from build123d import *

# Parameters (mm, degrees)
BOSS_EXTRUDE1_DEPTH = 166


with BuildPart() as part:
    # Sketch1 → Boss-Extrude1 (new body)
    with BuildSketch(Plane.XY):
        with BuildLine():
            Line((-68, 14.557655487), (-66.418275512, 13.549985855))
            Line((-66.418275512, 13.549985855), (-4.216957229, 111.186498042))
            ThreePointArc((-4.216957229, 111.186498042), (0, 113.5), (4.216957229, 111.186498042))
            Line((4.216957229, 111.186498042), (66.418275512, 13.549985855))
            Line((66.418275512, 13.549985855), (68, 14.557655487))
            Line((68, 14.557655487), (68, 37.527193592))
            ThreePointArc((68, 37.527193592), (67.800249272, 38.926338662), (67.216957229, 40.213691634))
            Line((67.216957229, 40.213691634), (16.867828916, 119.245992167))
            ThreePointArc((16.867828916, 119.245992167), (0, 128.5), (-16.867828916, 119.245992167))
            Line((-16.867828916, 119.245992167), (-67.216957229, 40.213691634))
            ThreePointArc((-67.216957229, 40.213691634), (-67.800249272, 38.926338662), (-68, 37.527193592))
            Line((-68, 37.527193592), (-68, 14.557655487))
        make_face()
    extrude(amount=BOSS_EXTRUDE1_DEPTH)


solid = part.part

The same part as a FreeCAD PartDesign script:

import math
import FreeCAD as App
import Part
import Sketcher
Q = App.Units.Quantity

doc = App.newDocument("Part")
body = doc.addObject("PartDesign::Body", "Body")

sketch1 = body.newObject("Sketcher::SketchObject", "Sketch")
sketch1.AttachmentSupport = (doc.getObject("XY_Plane"), [""])
sketch1.MapMode = "FlatFace"
sketch1.addGeometry([
    Part.LineSegment(App.Vector(-68, 14.6, 0), App.Vector(-66.4, 13.5, 0)),
    Part.LineSegment(App.Vector(-66.4, 13.5, 0), App.Vector(-4.2, 111.2, 0)),
    Part.ArcOfCircle(Part.Circle(App.Vector(0, 108.5, 0), App.Vector(0, 0, 1), 5), math.radians(33), math.radians(147)),
    Part.LineSegment(App.Vector(4.2, 111.2, 0), App.Vector(66.4, 13.5, 0)),
    Part.LineSegment(App.Vector(66.4, 13.5, 0), App.Vector(68, 14.6, 0)),
    Part.LineSegment(App.Vector(68, 14.6, 0), App.Vector(68, 37.5, 0)),
    Part.ArcOfCircle(Part.Circle(App.Vector(63, 37.5, 0), App.Vector(0, 0, 1), 5), math.radians(0), math.radians(32)),
    Part.LineSegment(App.Vector(67.2, 40.2, 0), App.Vector(16.9, 119.2, 0)),
    Part.ArcOfCircle(Part.Circle(App.Vector(0, 108.5, 0), App.Vector(0, 0, 1), 20), math.radians(33), math.radians(147)),
    Part.LineSegment(App.Vector(-16.9, 119.2, 0), App.Vector(-67.2, 40.2, 0)),
    Part.ArcOfCircle(Part.Circle(App.Vector(-63, 37.5, 0), App.Vector(0, 0, 1), 5), math.radians(148), math.radians(180)),
    Part.LineSegment(App.Vector(-68, 37.5, 0), App.Vector(-68, 14.6, 0)),
], False)
sketch1.addConstraint([
    Sketcher.Constraint("Coincident", 0, 2, 1, 1),
    Sketcher.Constraint("Tangent", 1, 2, 2, 2),
    Sketcher.Constraint("Tangent", 2, 1, 3, 1),
    Sketcher.Constraint("Coincident", 3, 2, 4, 1),
    Sketcher.Constraint("Coincident", 4, 2, 5, 1),
    Sketcher.Constraint("Tangent", 5, 2, 6, 1),
    Sketcher.Constraint("Tangent", 6, 2, 7, 1),
    Sketcher.Constraint("Tangent", 7, 2, 8, 1),
    Sketcher.Constraint("Tangent", 8, 2, 9, 1),
    Sketcher.Constraint("Tangent", 9, 2, 10, 1),
    Sketcher.Constraint("Tangent", 10, 2, 11, 1),
    Sketcher.Constraint("Coincident", 11, 2, 0, 1),
    Sketcher.Constraint("Vertical", 5),
    Sketcher.Constraint("Vertical", 11),
    Sketcher.Constraint("Coincident", 8, 3, 2, 3),
    Sketcher.Constraint("Equal", 2, 6),
    Sketcher.Constraint("Equal", 6, 10),
    Sketcher.Constraint("Symmetric", 6, 3, 10, 3, -2),
    Sketcher.Constraint("Symmetric", 1, 2, 2, 1, -2),
    Sketcher.Constraint("Perpendicular", 0, 1),
    Sketcher.Constraint("Perpendicular", 3, 4),
    Sketcher.Constraint("Perpendicular", 4, 7),
    Sketcher.Constraint("Horizontal", 0, 2, 3, 2),
    Sketcher.Constraint("Radius", 2, Q("5 mm")),
    Sketcher.Constraint("Radius", 8, Q("20 mm")),
    Sketcher.Constraint("DistanceX", -1, 1, 6, 3, Q("63 mm")),
    Sketcher.Constraint("Angle", 0, Q("-32.5 deg")),
    Sketcher.Constraint("DistanceY", -1, 1, 2, 3, Q("108.5 mm")),
    Sketcher.Constraint("DistanceY", 5, 1, 5, 2, Q("22.969538 mm")),
])
pad1 = body.newObject("PartDesign::Pad", "Pad")
pad1.Profile = sketch1
pad1.Length = 166

doc.recompute()
